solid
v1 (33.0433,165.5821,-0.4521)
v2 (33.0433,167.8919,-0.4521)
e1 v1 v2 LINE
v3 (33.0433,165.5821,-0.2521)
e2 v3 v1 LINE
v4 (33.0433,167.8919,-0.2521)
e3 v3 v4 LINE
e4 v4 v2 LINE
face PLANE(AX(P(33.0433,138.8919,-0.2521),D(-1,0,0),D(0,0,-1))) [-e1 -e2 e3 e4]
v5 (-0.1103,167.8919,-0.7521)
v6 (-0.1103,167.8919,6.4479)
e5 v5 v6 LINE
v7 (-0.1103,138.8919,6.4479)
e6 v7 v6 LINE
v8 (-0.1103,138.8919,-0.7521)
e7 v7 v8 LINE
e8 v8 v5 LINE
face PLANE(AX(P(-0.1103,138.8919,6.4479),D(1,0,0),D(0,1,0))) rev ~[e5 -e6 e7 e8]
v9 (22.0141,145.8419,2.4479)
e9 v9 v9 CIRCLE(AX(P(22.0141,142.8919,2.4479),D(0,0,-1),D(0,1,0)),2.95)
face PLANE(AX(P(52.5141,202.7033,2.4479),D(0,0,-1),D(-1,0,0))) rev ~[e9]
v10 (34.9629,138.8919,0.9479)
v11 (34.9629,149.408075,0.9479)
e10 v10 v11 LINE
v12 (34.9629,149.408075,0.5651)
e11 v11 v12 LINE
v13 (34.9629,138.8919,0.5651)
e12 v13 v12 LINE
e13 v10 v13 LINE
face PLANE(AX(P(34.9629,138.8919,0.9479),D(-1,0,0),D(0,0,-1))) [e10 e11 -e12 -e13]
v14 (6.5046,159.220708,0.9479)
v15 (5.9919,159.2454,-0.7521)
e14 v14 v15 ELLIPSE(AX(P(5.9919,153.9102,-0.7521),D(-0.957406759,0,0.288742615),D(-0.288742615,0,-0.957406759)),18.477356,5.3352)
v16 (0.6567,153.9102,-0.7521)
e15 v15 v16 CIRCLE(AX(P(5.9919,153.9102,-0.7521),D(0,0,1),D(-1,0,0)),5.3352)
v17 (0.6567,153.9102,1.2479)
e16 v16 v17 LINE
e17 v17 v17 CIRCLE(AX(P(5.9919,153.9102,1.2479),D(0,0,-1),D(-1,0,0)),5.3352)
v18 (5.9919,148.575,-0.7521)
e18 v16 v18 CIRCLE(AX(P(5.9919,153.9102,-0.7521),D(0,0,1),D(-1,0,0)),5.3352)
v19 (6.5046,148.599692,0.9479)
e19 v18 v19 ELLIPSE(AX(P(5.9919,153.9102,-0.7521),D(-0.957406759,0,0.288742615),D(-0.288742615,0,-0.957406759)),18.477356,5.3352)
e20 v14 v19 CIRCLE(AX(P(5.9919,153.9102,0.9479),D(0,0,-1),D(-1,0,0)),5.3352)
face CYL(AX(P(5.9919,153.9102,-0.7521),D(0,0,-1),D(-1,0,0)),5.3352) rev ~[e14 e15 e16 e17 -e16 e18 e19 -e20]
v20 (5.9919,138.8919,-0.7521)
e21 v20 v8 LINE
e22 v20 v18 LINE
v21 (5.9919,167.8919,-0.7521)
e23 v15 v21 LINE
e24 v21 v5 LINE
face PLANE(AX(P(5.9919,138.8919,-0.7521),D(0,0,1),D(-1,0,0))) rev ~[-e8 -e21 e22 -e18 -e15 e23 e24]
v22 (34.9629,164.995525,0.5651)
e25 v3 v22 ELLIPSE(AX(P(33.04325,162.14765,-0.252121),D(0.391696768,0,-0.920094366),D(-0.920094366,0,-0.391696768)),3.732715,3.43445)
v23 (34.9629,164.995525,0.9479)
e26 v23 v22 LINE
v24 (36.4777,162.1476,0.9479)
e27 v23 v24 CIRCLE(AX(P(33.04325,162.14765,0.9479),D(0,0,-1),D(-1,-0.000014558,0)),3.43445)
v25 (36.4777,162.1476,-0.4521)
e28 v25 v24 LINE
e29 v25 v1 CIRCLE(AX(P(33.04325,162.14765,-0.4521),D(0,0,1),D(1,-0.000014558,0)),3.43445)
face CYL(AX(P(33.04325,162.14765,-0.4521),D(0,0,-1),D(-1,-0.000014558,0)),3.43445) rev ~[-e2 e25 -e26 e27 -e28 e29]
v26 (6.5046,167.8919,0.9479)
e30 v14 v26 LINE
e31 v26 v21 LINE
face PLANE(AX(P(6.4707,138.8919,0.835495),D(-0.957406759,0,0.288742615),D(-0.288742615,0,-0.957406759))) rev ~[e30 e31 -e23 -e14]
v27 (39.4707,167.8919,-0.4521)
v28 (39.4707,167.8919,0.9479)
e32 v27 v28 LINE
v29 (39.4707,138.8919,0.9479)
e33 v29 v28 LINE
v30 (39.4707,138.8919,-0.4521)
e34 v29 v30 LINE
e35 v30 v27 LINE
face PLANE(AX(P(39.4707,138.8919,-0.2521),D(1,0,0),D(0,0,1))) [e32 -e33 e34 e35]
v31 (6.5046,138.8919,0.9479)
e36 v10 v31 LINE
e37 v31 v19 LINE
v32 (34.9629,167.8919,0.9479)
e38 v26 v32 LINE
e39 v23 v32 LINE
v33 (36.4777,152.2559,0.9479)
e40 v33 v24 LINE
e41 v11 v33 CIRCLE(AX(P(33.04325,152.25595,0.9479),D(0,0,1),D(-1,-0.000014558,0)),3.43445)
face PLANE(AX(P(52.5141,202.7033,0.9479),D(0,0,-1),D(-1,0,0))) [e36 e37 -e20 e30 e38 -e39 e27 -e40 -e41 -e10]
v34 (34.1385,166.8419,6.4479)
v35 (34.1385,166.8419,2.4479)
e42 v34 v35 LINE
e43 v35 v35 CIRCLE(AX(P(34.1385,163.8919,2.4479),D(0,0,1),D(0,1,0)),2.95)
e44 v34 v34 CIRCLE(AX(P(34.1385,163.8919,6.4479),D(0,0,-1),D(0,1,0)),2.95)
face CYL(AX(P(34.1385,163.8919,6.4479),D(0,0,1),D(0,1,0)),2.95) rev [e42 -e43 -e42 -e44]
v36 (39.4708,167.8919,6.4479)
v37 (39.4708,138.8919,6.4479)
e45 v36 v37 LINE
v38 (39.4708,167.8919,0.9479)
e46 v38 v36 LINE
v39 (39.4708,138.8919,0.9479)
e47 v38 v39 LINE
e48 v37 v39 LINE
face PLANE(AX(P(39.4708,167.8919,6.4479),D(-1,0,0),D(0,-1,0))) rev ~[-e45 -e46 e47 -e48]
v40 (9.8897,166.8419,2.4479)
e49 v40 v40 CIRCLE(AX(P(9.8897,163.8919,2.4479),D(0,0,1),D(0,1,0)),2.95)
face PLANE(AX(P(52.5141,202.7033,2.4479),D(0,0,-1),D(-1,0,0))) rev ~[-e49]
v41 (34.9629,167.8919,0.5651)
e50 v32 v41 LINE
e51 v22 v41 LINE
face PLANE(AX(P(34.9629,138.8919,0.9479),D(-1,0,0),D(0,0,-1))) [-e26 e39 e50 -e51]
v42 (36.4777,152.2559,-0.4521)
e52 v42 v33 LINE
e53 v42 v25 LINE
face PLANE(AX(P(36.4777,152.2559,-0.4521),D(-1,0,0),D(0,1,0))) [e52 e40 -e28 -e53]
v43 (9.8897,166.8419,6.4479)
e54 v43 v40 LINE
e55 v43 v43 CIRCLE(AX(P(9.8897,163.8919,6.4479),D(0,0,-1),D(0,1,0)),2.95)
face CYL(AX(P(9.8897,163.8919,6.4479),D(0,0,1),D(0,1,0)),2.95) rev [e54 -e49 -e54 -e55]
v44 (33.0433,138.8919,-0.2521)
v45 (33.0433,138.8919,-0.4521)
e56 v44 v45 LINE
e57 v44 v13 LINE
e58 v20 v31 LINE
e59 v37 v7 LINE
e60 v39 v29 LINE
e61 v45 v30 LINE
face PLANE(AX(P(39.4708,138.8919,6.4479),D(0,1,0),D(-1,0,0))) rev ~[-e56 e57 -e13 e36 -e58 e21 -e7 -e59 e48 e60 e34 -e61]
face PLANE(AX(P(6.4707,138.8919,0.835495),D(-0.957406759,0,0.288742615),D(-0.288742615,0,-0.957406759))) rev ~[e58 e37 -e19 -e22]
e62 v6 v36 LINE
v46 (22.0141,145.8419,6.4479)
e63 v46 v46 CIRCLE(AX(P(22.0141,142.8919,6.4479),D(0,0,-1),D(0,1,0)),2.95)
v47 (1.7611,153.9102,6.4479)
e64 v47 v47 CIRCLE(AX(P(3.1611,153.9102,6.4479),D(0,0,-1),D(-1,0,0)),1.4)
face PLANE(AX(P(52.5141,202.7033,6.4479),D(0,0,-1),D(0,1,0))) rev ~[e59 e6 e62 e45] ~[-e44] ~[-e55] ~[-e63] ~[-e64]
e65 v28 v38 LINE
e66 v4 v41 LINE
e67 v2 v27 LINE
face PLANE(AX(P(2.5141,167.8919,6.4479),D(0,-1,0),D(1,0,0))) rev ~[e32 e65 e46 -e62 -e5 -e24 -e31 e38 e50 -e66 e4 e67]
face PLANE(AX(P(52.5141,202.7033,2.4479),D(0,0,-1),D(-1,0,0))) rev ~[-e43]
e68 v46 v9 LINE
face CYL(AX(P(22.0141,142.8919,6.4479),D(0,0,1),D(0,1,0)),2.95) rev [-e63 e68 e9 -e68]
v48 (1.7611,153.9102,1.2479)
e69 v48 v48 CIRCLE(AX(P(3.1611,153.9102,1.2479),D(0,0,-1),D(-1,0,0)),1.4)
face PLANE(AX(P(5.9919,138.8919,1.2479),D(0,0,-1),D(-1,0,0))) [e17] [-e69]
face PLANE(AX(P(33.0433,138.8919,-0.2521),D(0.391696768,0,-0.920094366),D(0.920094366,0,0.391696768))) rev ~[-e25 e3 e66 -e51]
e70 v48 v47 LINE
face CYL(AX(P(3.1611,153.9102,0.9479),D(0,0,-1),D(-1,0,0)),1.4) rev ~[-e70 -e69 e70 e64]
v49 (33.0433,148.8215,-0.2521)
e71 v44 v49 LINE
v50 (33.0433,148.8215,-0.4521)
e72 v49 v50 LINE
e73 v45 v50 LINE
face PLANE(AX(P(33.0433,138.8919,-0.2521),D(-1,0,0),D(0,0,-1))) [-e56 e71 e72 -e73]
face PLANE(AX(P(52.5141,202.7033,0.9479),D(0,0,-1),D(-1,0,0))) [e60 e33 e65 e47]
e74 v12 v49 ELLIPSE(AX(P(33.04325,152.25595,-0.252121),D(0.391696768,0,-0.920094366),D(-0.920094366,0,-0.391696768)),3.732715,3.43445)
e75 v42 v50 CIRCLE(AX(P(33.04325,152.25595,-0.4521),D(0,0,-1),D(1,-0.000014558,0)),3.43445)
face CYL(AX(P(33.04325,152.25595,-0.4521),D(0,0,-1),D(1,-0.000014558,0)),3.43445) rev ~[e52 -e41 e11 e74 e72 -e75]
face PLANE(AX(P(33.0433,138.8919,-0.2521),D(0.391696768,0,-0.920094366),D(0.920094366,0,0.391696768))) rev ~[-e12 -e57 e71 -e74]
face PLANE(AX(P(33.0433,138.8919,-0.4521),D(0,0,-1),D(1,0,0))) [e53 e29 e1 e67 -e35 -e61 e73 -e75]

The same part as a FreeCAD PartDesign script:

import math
import FreeCAD as App
import Part
import Sketcher
Q = App.Units.Quantity

doc = App.newDocument("Part")
body = doc.addObject("PartDesign::Body", "Body")

# Sketch on XY plane
sketch1 = body.newObject("Sketcher::SketchObject", "Sketch")
sketch1.AttachmentSupport = (doc.getObject("XY_Plane"), [""])
sketch1.MapMode = "FlatFace"
sketch1.AttachmentOffset = App.Placement(App.Vector(0, 0, 6.4479), App.Rotation())
sketch1.addGeometry([
    Part.LineSegment(App.Vector(39.4708, 167.8919, 0), App.Vector(39.4708, 138.8919, 0)),  # 0
    Part.LineSegment(App.Vector(39.4708, 138.8919, 0), App.Vector(-0.1103, 138.8919, 0)),  # 1
    Part.LineSegment(App.Vector(-0.1103, 138.8919, 0), App.Vector(-0.1103, 167.8919, 0)),  # 2
    Part.LineSegment(App.Vector(-0.1103, 167.8919, 0), App.Vector(39.4708, 167.8919, 0)),  # 3
    Part.Circle(App.Vector(9.8897, 163.8919, 0), App.Vector(0, 0, 1), 2.95),  # 4
    Part.Circle(App.Vector(34.1385, 163.8919, 0), App.Vector(0, 0, 1), 2.95),  # 5
    Part.Circle(App.Vector(22.0141, 142.8919, 0), App.Vector(0, 0, 1), 2.95),  # 6
], False)
sketch1.addConstraint([
    Sketcher.Constraint("Coincident", 0, 2, 1, 1),
    Sketcher.Constraint("Coincident", 1, 2, 2, 1),
    Sketcher.Constraint("Coincident", 2, 2, 3, 1),
    Sketcher.Constraint("Coincident", 3, 2, 0, 1),
    Sketcher.Constraint("Vertical", 0),
    Sketcher.Constraint("Horizontal", 1),
    Sketcher.Constraint("Vertical", 2),
    Sketcher.Constraint("Horizontal", 3),
    Sketcher.Constraint("Equal", 4, 5),
    Sketcher.Constraint("Equal", 5, 6),
    Sketcher.Constraint("Horizontal", 4, 3, 5, 3),
    Sketcher.Constraint("Diameter", 4, 5.9),
    Sketcher.Constraint("DistanceY", 0, 2, 6, 3, 4.0),
    Sketcher.Constraint("DistanceX", 1, 2, 4, 3, 10.0),
    Sketcher.Constraint("DistanceY", 4, 3, 2, 2, 4.0),
    Sketcher.Constraint("DistanceY", 0, 2, 0, 1, 29.0),
    Sketcher.Constraint("DistanceX", 4, 3, 5, 3, 24.2488),
    Sketcher.Constraint("DistanceX", 4, 3, 6, 3, 12.1244),
    Sketcher.Constraint("DistanceX", 1, 2, 1, 1, 39.581),
    Sketcher.Constraint("DistanceY", -1, 1, 4, 3, 163.892),
    Sketcher.Constraint("DistanceX", -1, 1, 6, 3, 22.014),
])
pad1 = body.newObject("PartDesign::Pad", "Pad")
pad1.Profile = sketch1
pad1.Length = 4
pad1.Reversed = True

# Sketch on XY plane
sketch2 = body.newObject("Sketcher::SketchObject", "Sketch001")
sketch2.AttachmentSupport = (doc.getObject("XY_Plane"), [""])
sketch2.MapMode = "FlatFace"
sketch2.AttachmentOffset = App.Placement(App.Vector(0, 0, 2.4479), App.Rotation())
sketch2.addGeometry([
    Part.LineSegment(App.Vector(-0.1103, 167.8919, 0), App.Vector(39.4708, 167.8919, 0)),
    Part.LineSegment(App.Vector(39.4708, 167.8919, 0), App.Vector(39.4708, 138.8919, 0)),
    Part.LineSegment(App.Vector(39.4708, 138.8919, 0), App.Vector(-0.1103, 138.8919, 0)),
    Part.LineSegment(App.Vector(-0.1103, 138.8919, 0), App.Vector(-0.1103, 167.8919, 0)),
], False)
sketch2.addConstraint([
    Sketcher.Constraint("Coincident", 0, 2, 1, 1),
    Sketcher.Constraint("Coincident", 1, 2, 2, 1),
    Sketcher.Constraint("Coincident", 2, 2, 3, 1),
    Sketcher.Constraint("Coincident", 3, 2, 0, 1),
    Sketcher.Constraint("Horizontal", 0),
    Sketcher.Constraint("Vertical", 1),
    Sketcher.Constraint("Horizontal", 2),
    Sketcher.Constraint("Vertical", 3),
    Sketcher.Constraint("DistanceY", 1, 2, 1, 1, 29.0),
    Sketcher.Constraint("DistanceX", 0, 1, 0, 2, 39.581),
    Sketcher.Constraint("DistanceY", -1, 1, 0, 2, 167.892),
    Sketcher.Constraint("DistanceX", -1, 1, 0, 2, 39.4708),
])
pad2 = body.newObject("PartDesign::Pad", "Pad001")
pad2.Profile = sketch2
pad2.Length = 1.5
pad2.Reversed = True

# Sketch on XZ plane
sketch3 = body.newObject("Sketcher::SketchObject", "Sketch002")
sketch3.AttachmentSupport = (doc.getObject("XZ_Plane"), [""])
sketch3.MapMode = "FlatFace"
sketch3.AttachmentOffset = App.Placement(App.Vector(0, 0, -138.8919), App.Rotation())
sketch3.addGeometry([
    Part.LineSegment(App.Vector(39.4707, 0.9479, 0), App.Vector(34.9629, 0.9479, 0)),  # 0
    Part.LineSegment(App.Vector(34.9629, 0.9479, 0), App.Vector(34.9629, 0.5651, 0)),  # 1
    Part.LineSegment(App.Vector(34.9629, 0.5651, 0), App.Vector(33.0433, -0.2521, 0)),  # 2
    Part.LineSegment(App.Vector(33.0433, -0.2521, 0), App.Vector(33.0433, -0.4521, 0)),  # 3
    Part.LineSegment(App.Vector(33.0433, -0.4521, 0), App.Vector(39.4707, -0.4521, 0)),  # 4
    Part.LineSegment(App.Vector(39.4707, -0.4521, 0), App.Vector(39.4707, 0.9479, 0)),  # 5
    Part.LineSegment(App.Vector(-0.1103, 0.9479, 0), App.Vector(-0.1103, -0.7521, 0)),  # 6
    Part.LineSegment(App.Vector(-0.1103, -0.7521, 0), App.Vector(5.9919, -0.7521, 0)),  # 7
    Part.LineSegment(App.Vector(5.9919, -0.7521, 0), App.Vector(6.5046, 0.9479, 0)),  # 8
    Part.LineSegment(App.Vector(6.5046, 0.9479, 0), App.Vector(-0.1103, 0.9479, 0)),  # 9
], False)
sketch3.addConstraint([
    Sketcher.Constraint("Coincident", 0, 2, 1, 1),
    Sketcher.Constraint("Coincident", 1, 2, 2, 1),
    Sketcher.Constraint("Coincident", 2, 2, 3, 1),
    Sketcher.Constraint("Coincident", 3, 2, 4, 1),
    Sketcher.Constraint("Coincident", 4, 2, 5, 1),
    Sketcher.Constraint("Coincident", 5, 2, 0, 1),
    Sketcher.Constraint("Coincident", 6, 2, 7, 1),
    Sketcher.Constraint("Coincident", 7, 2, 8, 1),
    Sketcher.Constraint("Coincident", 8, 2, 9, 1),
    Sketcher.Constraint("Coincident", 9, 2, 6, 1),
    Sketcher.Constraint("Horizontal", 0),
    Sketcher.Constraint("Vertical", 1),
    Sketcher.Constraint("Vertical", 3),
    Sketcher.Constraint("Horizontal", 4),
    Sketcher.Constraint("Vertical", 5),
    Sketcher.Constraint("Vertical", 6),
    Sketcher.Constraint("Horizontal", 7),
    Sketcher.Constraint("Horizontal", 9),
    Sketcher.Constraint("Horizontal", 5, 2, 8, 2),
    Sketcher.Constraint("DistanceY", 3, 2, 3, 1, 0.2),
    Sketcher.Constraint("DistanceY", 2, 2, 0, 2, 1.2),
    Sketcher.Constraint("DistanceY", 6, 2, 6, 1, 1.7),
    Sketcher.Constraint("Angle", 2, Q("-156.94 deg")),
    Sketcher.Constraint("DistanceX", 9, 2, 9, 1, 6.615),
    Sketcher.Constraint("DistanceX", 0, 2, 0, 1, 4.5078),
    Sketcher.Constraint("DistanceX", 4, 1, 4, 2, 6.4274),
    Sketcher.Constraint("DistanceX", 7, 1, 7, 2, 6.1022),
    Sketcher.Constraint("DistanceX", -1, 1, 0, 2, 34.963),
    Sketcher.Constraint("DistanceY", -1, 1, 0, 2, 0.948),
    Sketcher.Constraint("DistanceX", -1, 1, 7, 2, 5.992),
])
pad3 = body.newObject("PartDesign::Pad", "Pad002")
pad3.Profile = sketch3
pad3.Length = 29
pad3.Reversed = True

# Sketch on XY plane
sketch4 = body.newObject("Sketcher::SketchObject", "Sketch003")
sketch4.AttachmentSupport = (doc.getObject("XY_Plane"), [""])
sketch4.MapMode = "FlatFace"
sketch4.AttachmentOffset = App.Placement(App.Vector(0, 0, -0.7521), App.Rotation())
sketch4.addGeometry(Part.Circle(App.Vector(5.9919, 153.9102, 0), App.Vector(0, 0, 1), 5.3352), False)
sketch4.addConstraint([
    Sketcher.Constraint("Diameter", 0, 10.6704),
    Sketcher.Constraint("DistanceX", -1, 1, 0, 3, 5.992),
    Sketcher.Constraint("DistanceY", -1, 1, 0, 3, 153.9102),
])
pocket1 = body.newObject("PartDesign::Pocket", "Pocket")
pocket1.Profile = sketch4
pocket1.Length = 2
pocket1.Reversed = True

# Sketch on XY plane
sketch5 = body.newObject("Sketcher::SketchObject", "Sketch004")
sketch5.AttachmentSupport = (doc.getObject("XY_Plane"), [""])
sketch5.MapMode = "FlatFace"
sketch5.AttachmentOffset = App.Placement(App.Vector(0, 0, 0.9479), App.Rotation())
sketch5.addGeometry(Part.Circle(App.Vector(3.1611, 153.9102, 0), App.Vector(0, 0, 1), 1.4), False)
sketch5.addConstraint([
    Sketcher.Constraint("Diameter", 0, 2.8),
    Sketcher.Constraint("DistanceX", -1, 1, 0, 3, 3.161),
    Sketcher.Constraint("DistanceY", -1, 1, 0, 3, 153.9102),
])
pocket2 = body.newObject("PartDesign::Pocket", "Pocket001")
pocket2.Profile = sketch5
pocket2.Type = "ThroughAll"
pocket2.Reversed = True

# Sketch on XY plane
sketch6 = body.newObject("Sketcher::SketchObject", "Sketch005")
sketch6.AttachmentSupport = (doc.getObject("XY_Plane"), [""])
sketch6.MapMode = "FlatFace"
sketch6.AttachmentOffset = App.Placement(App.Vector(0, 0, -0.4521), App.Rotation())
sketch6.addGeometry([
    Part.ArcOfCircle(Part.Circle(App.Vector(33.0433, 162.1476, 0), App.Vector(0, 0, 1), 3.4345), math.radians(0), math.radians(180)),
    Part.LineSegment(App.Vector(36.4777, 162.1476, 0), App.Vector(36.4777, 152.2559, 0)),
    Part.ArcOfCircle(Part.Circle(App.Vector(33.0433, 152.2559, 0), App.Vector(0, 0, 1), 3.4344), math.radians(180), math.radians(360)),
    Part.LineSegment(App.Vector(29.6088, 152.2559, 0), App.Vector(29.6088, 162.1476, 0)),
], False)
sketch6.addConstraint([
    Sketcher.Constraint("Tangent", 0, 1, 1, 1),
    Sketcher.Constraint("Tangent", 1, 2, 2, 2),
    Sketcher.Constraint("Tangent", 2, 1, 3, 1),
    Sketcher.Constraint("Tangent", 3, 2, 0, 2),
    Sketcher.Constraint("Vertical", 1),
    Sketcher.Constraint("Vertical", 3),
    Sketcher.Constraint("Radius", 0, 3.4345),
    Sketcher.Constraint("DistanceY", 1, 2, 1, 1, 9.8917),
    Sketcher.Constraint("DistanceY", -1, 1, 2, 3, 152.256),
    Sketcher.Constraint("DistanceX", -1, 1, 2, 1, 29.609),
])
pocket3 = body.newObject("PartDesign::Pocket", "Pocket002")
pocket3.Profile = sketch6
pocket3.Length = 1.4
pocket3.Reversed = True

doc.recompute()
